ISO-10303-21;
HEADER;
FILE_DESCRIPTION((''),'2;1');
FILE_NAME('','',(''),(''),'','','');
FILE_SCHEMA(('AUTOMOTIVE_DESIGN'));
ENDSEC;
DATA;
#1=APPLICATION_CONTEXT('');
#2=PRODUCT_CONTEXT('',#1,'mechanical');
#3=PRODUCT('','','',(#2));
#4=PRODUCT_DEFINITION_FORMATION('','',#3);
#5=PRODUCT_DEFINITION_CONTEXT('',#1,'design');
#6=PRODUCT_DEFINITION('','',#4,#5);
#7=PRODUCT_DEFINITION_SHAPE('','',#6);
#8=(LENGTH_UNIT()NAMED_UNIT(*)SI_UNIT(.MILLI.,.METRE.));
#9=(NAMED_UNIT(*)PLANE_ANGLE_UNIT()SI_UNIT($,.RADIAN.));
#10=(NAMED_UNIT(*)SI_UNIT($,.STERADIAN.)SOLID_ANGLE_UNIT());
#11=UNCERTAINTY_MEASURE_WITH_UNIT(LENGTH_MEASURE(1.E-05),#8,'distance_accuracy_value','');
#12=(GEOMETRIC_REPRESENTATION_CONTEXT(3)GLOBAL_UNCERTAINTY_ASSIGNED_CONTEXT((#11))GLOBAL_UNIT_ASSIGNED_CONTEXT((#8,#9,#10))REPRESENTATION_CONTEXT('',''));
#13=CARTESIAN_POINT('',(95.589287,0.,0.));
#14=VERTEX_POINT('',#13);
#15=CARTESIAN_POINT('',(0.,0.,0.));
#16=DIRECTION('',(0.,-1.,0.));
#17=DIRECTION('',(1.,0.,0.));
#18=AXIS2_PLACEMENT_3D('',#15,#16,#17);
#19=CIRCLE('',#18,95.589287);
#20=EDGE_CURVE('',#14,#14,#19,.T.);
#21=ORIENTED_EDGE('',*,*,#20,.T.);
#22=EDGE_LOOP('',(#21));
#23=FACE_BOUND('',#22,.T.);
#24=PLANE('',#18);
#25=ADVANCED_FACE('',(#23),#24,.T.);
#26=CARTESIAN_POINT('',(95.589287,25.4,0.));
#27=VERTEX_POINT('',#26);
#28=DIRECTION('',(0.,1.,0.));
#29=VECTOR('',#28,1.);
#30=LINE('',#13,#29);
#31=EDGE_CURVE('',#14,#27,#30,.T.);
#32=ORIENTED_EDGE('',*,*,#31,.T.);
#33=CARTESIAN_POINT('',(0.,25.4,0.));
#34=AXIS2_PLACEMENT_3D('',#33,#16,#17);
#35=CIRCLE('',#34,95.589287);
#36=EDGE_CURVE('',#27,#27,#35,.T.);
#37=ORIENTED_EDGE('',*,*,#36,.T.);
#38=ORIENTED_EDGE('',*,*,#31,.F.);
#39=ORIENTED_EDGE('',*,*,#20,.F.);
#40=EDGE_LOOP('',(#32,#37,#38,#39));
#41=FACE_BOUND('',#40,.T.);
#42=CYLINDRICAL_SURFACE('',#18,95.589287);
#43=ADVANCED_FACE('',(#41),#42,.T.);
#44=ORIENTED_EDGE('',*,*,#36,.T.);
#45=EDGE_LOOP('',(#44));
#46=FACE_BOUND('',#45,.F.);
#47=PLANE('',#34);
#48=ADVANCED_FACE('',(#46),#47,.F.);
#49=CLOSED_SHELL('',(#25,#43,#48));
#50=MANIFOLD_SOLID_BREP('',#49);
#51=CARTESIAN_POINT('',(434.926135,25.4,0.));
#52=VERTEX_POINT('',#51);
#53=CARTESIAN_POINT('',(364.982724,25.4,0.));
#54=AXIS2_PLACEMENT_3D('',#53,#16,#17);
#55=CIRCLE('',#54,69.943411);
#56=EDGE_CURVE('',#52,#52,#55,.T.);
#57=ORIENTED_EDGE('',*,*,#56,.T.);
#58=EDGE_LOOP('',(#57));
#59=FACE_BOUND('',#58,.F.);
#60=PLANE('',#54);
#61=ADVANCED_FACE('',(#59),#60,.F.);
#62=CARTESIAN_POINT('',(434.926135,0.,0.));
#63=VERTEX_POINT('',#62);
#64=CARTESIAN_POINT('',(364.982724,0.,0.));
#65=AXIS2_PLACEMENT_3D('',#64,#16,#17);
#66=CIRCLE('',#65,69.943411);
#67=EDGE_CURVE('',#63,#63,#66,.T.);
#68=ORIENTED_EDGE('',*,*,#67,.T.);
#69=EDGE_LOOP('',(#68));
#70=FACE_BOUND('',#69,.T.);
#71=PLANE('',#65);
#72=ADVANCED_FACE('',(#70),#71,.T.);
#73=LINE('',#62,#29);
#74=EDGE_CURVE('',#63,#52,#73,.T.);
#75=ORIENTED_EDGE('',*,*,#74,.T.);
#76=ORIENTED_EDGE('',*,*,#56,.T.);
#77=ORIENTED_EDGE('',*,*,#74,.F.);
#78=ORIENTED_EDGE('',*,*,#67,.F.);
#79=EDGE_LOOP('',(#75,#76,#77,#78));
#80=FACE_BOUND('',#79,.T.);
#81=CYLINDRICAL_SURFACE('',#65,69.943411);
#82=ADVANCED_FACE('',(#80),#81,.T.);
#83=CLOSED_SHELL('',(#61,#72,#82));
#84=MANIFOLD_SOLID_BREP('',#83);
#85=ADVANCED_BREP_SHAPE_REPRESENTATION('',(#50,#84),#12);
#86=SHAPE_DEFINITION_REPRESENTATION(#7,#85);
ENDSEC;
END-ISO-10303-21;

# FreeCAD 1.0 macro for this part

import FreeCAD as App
import Part
import Sketcher
from FreeCAD import Vector
Q = App.Units.Quantity

doc = App.newDocument("Part")
body = doc.addObject("PartDesign::Body", "Body")
body.AllowCompound = True

sketch1 = body.newObject("Sketcher::SketchObject", "Sketch")
sketch1.AttachmentSupport = (doc.getObject("XZ_Plane"), [""])
sketch1.MapMode = "FlatFace"
sketch1.addGeometry(Part.Circle(Vector(364.982724, 0, 0), Vector(0, 0, 1), 69.943411), False)
sketch1.addGeometry(Part.Circle(Vector(0, 0, 0), Vector(0, 0, 1), 95.589287), False)
sketch1.addConstraint(Sketcher.Constraint("Coincident", 1, 3, -1, 1))
sketch1.addConstraint(Sketcher.Constraint("PointOnObject", 0, 3, -1))
sketch1.addConstraint(Sketcher.Constraint("Diameter", 0, 139.886822))
sketch1.addConstraint(Sketcher.Constraint("Diameter", 1, 191.178574))
sketch1.addConstraint(Sketcher.Constraint("DistanceX", -1, 1, 0, 3, 364.982724))
pad1 = body.newObject("PartDesign::Pad", "Pad")
pad1.Profile = sketch1
pad1.Length = Q("1 in")
pad1.Reversed = True

doc.recompute()
